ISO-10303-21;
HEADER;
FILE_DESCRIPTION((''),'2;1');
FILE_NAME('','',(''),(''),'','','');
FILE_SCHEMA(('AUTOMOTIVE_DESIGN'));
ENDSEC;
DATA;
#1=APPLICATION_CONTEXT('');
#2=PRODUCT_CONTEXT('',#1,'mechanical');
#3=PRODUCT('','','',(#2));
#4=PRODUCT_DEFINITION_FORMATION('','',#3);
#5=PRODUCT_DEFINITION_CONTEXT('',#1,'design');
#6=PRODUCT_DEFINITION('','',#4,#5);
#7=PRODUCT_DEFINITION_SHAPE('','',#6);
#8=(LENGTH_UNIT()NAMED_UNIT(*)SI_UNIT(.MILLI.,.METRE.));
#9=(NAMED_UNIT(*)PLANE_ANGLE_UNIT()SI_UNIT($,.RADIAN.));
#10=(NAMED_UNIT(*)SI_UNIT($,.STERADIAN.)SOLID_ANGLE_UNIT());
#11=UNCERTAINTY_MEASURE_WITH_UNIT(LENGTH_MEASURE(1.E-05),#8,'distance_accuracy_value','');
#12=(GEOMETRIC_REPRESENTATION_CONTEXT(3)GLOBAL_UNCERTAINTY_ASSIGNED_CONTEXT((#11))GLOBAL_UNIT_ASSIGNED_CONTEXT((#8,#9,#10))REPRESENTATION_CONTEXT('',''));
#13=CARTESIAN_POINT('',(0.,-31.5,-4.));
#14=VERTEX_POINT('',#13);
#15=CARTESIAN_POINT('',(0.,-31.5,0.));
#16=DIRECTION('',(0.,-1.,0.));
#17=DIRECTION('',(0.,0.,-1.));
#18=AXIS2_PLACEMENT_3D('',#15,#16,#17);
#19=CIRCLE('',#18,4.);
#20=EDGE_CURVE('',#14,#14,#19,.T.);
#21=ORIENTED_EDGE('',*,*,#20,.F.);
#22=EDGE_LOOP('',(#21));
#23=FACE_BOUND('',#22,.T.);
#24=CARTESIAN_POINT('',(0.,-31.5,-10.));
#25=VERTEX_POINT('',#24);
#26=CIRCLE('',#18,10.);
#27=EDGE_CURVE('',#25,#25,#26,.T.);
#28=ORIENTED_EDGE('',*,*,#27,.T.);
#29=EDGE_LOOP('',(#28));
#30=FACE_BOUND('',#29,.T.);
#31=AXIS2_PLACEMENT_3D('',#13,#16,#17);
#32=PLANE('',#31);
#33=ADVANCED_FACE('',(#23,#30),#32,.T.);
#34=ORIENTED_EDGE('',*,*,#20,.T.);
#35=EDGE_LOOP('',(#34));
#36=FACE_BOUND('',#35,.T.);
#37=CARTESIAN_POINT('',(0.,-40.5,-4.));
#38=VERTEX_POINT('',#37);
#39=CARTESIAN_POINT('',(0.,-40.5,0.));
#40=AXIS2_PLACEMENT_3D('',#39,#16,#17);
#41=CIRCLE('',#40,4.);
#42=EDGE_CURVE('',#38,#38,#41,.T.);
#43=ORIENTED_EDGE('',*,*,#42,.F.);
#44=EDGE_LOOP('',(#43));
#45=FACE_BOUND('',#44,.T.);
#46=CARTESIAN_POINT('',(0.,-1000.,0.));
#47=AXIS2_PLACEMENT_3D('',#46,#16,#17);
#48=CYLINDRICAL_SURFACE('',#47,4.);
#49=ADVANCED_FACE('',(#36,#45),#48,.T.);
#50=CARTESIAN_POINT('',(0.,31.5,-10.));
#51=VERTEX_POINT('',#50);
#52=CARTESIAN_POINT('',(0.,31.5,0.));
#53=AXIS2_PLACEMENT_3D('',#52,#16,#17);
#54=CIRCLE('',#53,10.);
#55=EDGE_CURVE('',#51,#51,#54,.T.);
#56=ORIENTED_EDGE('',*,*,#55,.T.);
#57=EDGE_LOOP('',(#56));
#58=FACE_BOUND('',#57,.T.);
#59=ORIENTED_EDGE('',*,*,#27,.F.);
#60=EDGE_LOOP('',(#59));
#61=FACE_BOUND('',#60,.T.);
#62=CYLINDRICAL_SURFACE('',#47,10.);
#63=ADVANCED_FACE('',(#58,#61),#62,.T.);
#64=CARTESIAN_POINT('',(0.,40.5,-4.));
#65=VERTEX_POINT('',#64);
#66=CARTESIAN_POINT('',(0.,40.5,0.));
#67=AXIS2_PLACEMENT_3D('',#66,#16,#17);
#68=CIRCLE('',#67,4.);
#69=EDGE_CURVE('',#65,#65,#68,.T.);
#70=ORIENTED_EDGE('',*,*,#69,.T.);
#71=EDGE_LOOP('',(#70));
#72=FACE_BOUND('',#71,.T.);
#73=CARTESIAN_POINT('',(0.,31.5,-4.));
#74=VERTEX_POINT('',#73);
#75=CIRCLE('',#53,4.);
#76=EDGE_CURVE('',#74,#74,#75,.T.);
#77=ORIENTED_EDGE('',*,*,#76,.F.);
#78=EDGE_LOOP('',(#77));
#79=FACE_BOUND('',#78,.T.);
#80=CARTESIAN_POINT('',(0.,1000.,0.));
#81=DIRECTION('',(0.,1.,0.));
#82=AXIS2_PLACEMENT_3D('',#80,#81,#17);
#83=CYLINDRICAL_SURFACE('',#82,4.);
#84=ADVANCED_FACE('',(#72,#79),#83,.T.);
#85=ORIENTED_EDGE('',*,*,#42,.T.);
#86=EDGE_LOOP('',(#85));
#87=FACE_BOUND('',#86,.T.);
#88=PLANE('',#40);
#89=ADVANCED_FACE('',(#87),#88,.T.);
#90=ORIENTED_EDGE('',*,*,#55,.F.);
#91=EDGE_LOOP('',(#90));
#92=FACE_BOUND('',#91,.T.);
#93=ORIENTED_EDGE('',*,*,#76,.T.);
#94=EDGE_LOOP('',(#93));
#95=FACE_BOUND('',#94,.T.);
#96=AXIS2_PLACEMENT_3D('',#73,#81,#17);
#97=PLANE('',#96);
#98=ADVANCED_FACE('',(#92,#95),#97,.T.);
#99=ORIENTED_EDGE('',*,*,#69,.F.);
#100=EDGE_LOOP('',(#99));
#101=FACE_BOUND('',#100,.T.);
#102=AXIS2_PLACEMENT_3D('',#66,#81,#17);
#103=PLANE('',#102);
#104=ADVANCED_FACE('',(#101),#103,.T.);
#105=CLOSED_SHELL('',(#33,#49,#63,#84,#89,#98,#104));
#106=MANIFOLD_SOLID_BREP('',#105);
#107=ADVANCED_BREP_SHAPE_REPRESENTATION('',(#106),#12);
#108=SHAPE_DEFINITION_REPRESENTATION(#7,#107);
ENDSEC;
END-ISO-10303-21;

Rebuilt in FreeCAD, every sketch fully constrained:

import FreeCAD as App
import Part
import Sketcher

V = App.Vector
Q = App.Units.Quantity


def add_polygon(sketch, points):
    """Adds a closed chain of lines whose ends are joined by coincident constraints."""
    first, n = sketch.GeometryCount, len(points)
    for a, b in zip(points, points[1:] + points[:1]):
        sketch.addGeometry(Part.LineSegment(App.Vector(*a, 0), App.Vector(*b, 0)), False)
    for i in range(n):
        sketch.addConstraint(Sketcher.Constraint("Coincident", first + i, 2, first + (i + 1) % n, 1))

doc = App.newDocument("Part")
body = doc.addObject("PartDesign::Body", "Body")

# Sketch on YZ plane
sketch1 = body.newObject("Sketcher::SketchObject", "Sketch")
sketch1.AttachmentSupport = (doc.getObject("YZ_Plane"), [""])
sketch1.MapMode = "FlatFace"
add_polygon(sketch1, [(0, 0), (-40.5, 0), (-40.5, -4), (-31.5, -4), (-31.5, -10), (0, -10)])  # lines 0-5
sketch1.addConstraint(Sketcher.Constraint("Horizontal", 0))
sketch1.addConstraint(Sketcher.Constraint("Vertical", 1))
sketch1.addConstraint(Sketcher.Constraint("Horizontal", 2))
sketch1.addConstraint(Sketcher.Constraint("Vertical", 3))
sketch1.addConstraint(Sketcher.Constraint("Horizontal", 4))
sketch1.addConstraint(Sketcher.Constraint("Vertical", 5))
sketch1.addConstraint(Sketcher.Constraint("Coincident", 5, 2, -1, 1))
sketch1.addConstraint(Sketcher.Constraint("DistanceX", 2, 1, 2, 2, Q("9 mm")))
sketch1.addConstraint(Sketcher.Constraint("DistanceY", 1, 2, 1, 1, Q("4 mm")))
sketch1.addConstraint(Sketcher.Constraint("DistanceY", 3, 2, 3, 1, Q("6 mm")))
sketch1.addConstraint(Sketcher.Constraint("DistanceX", 0, 2, 0, 1, Q("40.5 mm")))
revolution = body.newObject("PartDesign::Revolution", "Revolution")
revolution.Profile = sketch1
revolution.ReferenceAxis = (sketch1, ["H_Axis"])
revolution.Angle = 360
doc.recompute()

mirrored = body.newObject("PartDesign::Mirrored", "Mirrored")
mirrored.Originals = [revolution]
mirrored.MirrorPlane = (doc.getObject("XZ_Plane"), [""])
body.Tip = mirrored

doc.recompute()
